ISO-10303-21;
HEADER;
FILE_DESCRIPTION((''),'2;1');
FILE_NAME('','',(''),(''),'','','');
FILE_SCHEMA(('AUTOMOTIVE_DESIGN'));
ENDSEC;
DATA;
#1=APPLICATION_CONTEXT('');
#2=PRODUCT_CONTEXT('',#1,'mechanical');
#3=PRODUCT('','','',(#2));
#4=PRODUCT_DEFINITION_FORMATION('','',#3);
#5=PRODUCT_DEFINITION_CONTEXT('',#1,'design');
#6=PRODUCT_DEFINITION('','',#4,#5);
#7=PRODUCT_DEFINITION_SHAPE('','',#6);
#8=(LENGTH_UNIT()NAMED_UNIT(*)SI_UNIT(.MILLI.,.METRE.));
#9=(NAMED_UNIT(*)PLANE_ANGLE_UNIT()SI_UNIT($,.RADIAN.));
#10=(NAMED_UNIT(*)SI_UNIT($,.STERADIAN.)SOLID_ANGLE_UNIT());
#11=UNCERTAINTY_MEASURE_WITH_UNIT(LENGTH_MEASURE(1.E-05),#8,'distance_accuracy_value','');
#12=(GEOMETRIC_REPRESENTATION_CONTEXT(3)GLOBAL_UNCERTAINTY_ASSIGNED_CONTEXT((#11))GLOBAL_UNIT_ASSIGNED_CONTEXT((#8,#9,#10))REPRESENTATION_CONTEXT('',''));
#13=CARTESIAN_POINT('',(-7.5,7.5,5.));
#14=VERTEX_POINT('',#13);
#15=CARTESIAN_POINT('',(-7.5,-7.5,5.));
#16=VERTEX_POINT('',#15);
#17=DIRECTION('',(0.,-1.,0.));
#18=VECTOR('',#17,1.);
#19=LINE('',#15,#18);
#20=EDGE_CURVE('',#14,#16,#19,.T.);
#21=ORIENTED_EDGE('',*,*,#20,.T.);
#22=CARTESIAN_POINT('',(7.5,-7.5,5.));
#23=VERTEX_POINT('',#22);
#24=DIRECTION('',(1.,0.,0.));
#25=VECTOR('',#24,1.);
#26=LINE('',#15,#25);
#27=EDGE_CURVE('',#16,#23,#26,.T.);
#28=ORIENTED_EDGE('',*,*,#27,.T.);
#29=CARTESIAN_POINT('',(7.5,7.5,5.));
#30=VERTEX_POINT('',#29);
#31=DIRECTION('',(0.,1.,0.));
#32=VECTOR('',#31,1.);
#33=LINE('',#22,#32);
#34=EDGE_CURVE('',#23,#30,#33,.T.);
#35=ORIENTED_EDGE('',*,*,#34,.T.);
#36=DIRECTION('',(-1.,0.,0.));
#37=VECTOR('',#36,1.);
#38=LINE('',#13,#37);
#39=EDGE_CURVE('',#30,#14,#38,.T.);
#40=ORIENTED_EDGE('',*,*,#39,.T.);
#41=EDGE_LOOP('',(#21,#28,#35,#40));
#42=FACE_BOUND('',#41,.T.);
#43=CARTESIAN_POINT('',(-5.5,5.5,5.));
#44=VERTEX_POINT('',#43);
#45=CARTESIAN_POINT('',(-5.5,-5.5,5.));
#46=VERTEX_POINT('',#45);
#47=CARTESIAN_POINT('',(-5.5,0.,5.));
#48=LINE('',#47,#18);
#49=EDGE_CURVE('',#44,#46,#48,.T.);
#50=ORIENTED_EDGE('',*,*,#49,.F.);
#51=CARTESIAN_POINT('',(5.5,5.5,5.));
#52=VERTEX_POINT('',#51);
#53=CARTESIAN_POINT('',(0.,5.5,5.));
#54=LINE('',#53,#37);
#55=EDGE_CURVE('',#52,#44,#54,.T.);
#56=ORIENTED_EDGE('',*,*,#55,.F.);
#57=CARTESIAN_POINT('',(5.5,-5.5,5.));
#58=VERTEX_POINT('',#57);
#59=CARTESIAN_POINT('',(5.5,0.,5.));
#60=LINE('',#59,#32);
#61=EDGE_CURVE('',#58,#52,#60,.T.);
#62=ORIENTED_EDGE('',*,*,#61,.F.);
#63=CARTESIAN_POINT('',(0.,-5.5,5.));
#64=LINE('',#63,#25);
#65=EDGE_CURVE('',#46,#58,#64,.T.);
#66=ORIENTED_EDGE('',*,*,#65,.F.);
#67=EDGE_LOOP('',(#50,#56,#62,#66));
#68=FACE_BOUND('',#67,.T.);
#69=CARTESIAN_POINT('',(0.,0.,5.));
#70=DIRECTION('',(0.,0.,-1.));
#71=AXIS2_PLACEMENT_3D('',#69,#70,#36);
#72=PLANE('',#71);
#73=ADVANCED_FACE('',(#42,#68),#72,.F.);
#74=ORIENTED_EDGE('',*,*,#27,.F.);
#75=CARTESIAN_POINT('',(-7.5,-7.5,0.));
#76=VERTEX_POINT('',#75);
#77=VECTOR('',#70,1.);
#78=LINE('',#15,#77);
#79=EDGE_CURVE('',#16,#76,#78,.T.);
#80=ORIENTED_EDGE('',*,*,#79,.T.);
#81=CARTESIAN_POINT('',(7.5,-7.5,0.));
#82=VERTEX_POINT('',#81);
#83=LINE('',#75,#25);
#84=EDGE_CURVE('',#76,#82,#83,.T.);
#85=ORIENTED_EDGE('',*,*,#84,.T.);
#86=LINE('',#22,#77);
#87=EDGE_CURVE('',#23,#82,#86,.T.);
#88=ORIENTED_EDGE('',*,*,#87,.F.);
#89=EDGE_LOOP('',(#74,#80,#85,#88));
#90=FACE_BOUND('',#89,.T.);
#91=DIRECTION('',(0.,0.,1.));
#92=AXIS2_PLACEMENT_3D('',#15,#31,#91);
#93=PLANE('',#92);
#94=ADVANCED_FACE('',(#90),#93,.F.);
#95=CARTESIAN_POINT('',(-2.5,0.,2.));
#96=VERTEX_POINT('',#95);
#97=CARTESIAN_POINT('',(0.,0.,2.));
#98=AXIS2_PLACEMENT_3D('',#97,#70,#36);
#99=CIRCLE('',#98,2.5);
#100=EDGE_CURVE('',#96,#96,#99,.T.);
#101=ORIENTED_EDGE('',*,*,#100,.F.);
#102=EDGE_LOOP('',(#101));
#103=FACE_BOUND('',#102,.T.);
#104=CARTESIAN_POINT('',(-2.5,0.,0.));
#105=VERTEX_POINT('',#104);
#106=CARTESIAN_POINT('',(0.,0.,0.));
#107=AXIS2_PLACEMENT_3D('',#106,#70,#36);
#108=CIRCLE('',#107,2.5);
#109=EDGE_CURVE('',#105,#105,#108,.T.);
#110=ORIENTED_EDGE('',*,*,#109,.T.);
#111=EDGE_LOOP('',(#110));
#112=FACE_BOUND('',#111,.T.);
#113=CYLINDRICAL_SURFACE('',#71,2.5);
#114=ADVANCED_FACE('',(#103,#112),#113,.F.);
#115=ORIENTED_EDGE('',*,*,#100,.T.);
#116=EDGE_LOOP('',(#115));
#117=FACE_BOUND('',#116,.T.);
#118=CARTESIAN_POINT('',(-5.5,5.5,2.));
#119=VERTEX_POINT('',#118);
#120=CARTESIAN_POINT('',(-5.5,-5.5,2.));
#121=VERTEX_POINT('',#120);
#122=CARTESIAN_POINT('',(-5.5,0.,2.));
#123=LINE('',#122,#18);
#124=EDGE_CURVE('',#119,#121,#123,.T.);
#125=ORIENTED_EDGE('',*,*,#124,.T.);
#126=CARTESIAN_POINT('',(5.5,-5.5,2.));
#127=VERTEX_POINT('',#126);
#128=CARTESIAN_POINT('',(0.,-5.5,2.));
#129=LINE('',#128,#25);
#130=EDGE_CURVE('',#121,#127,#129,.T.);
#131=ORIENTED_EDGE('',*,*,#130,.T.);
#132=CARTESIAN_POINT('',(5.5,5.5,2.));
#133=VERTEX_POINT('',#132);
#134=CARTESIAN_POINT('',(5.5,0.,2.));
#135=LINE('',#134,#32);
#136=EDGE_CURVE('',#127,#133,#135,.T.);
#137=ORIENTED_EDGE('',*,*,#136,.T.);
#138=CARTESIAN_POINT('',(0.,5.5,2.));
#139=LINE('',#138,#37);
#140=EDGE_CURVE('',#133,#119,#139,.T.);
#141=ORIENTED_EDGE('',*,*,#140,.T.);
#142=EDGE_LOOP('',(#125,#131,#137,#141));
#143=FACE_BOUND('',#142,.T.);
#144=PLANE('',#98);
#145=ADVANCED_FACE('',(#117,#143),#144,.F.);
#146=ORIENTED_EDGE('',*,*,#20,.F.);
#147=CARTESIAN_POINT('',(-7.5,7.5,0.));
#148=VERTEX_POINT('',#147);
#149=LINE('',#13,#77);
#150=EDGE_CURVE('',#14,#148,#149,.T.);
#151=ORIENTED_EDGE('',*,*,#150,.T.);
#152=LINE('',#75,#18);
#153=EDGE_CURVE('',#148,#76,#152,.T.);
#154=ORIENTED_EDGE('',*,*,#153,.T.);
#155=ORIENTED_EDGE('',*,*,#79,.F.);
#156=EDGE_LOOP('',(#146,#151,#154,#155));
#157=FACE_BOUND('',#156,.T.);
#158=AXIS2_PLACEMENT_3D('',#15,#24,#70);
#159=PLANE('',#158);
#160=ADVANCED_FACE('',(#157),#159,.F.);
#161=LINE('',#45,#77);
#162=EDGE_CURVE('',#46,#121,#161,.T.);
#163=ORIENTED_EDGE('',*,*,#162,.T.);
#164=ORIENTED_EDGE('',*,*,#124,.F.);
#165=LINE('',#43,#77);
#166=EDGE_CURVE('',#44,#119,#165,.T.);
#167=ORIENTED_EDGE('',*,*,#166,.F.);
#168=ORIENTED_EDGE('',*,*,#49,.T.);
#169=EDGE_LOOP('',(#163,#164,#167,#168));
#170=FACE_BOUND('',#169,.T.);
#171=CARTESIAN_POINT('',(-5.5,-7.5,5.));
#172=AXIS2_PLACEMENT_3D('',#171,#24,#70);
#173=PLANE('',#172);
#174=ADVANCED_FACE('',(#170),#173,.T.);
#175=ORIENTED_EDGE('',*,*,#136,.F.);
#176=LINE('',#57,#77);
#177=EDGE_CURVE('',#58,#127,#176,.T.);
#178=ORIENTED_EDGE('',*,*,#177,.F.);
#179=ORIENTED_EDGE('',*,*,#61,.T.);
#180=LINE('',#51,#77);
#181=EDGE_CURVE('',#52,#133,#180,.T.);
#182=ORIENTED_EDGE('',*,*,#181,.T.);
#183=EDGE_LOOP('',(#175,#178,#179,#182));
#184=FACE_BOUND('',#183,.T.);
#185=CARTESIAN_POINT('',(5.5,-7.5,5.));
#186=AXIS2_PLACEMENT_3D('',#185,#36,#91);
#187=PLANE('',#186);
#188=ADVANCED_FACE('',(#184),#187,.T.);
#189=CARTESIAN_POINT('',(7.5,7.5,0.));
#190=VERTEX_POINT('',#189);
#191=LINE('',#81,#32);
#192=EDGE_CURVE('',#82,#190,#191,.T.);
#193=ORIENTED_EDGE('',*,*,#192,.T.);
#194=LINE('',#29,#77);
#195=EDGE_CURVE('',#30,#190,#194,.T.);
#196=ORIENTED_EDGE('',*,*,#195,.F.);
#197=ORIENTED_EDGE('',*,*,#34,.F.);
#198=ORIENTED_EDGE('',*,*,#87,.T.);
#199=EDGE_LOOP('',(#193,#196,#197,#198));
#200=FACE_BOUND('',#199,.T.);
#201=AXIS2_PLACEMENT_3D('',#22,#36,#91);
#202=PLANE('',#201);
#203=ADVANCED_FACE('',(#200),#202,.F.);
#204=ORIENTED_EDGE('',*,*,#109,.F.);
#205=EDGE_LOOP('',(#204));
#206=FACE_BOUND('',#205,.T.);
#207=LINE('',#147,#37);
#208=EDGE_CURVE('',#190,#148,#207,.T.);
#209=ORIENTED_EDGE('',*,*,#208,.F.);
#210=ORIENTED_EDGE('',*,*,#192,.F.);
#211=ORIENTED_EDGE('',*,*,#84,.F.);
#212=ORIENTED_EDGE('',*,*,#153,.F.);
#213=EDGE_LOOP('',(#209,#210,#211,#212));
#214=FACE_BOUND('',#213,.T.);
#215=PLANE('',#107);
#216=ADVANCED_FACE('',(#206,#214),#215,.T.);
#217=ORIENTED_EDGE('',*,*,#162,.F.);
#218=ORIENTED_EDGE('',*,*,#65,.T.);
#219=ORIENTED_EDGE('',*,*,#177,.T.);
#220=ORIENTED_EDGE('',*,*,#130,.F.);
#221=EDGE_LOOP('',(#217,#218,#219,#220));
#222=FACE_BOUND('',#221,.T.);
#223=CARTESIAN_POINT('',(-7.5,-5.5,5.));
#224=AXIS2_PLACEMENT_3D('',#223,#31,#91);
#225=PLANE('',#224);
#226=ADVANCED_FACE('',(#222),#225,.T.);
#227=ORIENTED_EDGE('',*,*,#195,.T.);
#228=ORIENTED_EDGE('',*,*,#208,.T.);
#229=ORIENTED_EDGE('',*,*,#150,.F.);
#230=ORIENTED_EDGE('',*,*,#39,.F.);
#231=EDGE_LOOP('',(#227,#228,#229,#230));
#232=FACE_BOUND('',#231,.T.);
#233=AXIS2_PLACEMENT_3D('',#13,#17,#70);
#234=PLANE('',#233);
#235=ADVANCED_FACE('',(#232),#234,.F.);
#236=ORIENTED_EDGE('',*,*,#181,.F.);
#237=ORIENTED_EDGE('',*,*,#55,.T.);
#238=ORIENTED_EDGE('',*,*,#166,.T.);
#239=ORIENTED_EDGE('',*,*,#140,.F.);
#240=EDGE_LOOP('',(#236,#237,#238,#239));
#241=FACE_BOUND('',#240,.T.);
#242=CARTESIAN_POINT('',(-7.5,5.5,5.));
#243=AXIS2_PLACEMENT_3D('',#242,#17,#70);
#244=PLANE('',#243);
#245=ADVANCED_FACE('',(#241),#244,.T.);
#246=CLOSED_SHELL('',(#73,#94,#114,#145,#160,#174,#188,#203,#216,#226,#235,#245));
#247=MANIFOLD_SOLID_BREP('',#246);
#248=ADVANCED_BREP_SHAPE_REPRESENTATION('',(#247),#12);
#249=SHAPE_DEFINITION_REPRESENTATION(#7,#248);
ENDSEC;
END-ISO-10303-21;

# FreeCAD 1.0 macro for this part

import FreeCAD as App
import Part
import Sketcher
Q = App.Units.Quantity


def faces_at(feature, points):
    """Names of the faces that lie closest to the given points."""
    faces = feature.Shape.Faces
    near = lambda p: min(range(len(faces)), key=lambda i: faces[i].distToShape(Part.Vertex(*p))[0])
    return sorted({f"Face{near(p) + 1}" for p in points})


def add_polygon(sketch, points):
    """Adds a closed chain of lines whose ends are joined by coincident constraints."""
    first, n = sketch.GeometryCount, len(points)
    for a, b in zip(points, points[1:] + points[:1]):
        sketch.addGeometry(Part.LineSegment(App.Vector(*a, 0), App.Vector(*b, 0)), False)
    for i in range(n):
        sketch.addConstraint(Sketcher.Constraint("Coincident", first + i, 2, first + (i + 1) % n, 1))

doc = App.newDocument("Part")
body = doc.addObject("PartDesign::Body", "Body")

# Sketch on XY plane
sketch1 = doc.addObject("Sketcher::SketchObject", "Sketch")
body.addObject(sketch1)
sketch1.AttachmentSupport = (doc.XY_Plane, [""])
sketch1.MapMode = "FlatFace"
add_polygon(sketch1, [(-7.5, 7.5), (-7.5, -7.5), (7.5, -7.5), (7.5, 7.5)])  # lines 0-3
sketch1.addConstraint([
    Sketcher.Constraint("Vertical", 0),
    Sketcher.Constraint("Horizontal", 1),
    Sketcher.Constraint("Vertical", 2),
    Sketcher.Constraint("Horizontal", 3),
    Sketcher.Constraint("Symmetric", 0, 2, 2, 2, -1, 1),
    Sketcher.Constraint("Equal", 3, 0),
    Sketcher.Constraint("DistanceX", 1, 1, 1, 2, Q("15 mm")),
])
pad1 = doc.addObject("PartDesign::Pad", "Pad")
body.addObject(pad1)
pad1.Profile = sketch1
pad1.Length = 5
doc.recompute()

thickness = doc.addObject("PartDesign::Thickness", "Thickness")
body.addObject(thickness)
thickness.Base = (pad1, faces_at(pad1, [(0, 0, 5)]))
thickness.Value = 2
thickness.Reversed = True
thickness.Join = "Intersection"

# Sketch on XY plane
sketch2 = doc.addObject("Sketcher::SketchObject", "Sketch001")
body.addObject(sketch2)
sketch2.AttachmentSupport = (doc.XY_Plane, [""])
sketch2.MapMode = "FlatFace"
sketch2.addGeometry(Part.Circle(App.Vector(0, 0, 0), App.Vector(0, 0, 1), 2.5), False)
sketch2.addConstraint([
    Sketcher.Constraint("Coincident", 0, 3, -1, 1),
    Sketcher.Constraint("Diameter", 0, Q("5 mm")),
])
pocket1 = doc.addObject("PartDesign::Pocket", "Pocket")
body.addObject(pocket1)
pocket1.Profile = sketch2
pocket1.Length = 5
pocket1.Reversed = True

doc.recompute()
